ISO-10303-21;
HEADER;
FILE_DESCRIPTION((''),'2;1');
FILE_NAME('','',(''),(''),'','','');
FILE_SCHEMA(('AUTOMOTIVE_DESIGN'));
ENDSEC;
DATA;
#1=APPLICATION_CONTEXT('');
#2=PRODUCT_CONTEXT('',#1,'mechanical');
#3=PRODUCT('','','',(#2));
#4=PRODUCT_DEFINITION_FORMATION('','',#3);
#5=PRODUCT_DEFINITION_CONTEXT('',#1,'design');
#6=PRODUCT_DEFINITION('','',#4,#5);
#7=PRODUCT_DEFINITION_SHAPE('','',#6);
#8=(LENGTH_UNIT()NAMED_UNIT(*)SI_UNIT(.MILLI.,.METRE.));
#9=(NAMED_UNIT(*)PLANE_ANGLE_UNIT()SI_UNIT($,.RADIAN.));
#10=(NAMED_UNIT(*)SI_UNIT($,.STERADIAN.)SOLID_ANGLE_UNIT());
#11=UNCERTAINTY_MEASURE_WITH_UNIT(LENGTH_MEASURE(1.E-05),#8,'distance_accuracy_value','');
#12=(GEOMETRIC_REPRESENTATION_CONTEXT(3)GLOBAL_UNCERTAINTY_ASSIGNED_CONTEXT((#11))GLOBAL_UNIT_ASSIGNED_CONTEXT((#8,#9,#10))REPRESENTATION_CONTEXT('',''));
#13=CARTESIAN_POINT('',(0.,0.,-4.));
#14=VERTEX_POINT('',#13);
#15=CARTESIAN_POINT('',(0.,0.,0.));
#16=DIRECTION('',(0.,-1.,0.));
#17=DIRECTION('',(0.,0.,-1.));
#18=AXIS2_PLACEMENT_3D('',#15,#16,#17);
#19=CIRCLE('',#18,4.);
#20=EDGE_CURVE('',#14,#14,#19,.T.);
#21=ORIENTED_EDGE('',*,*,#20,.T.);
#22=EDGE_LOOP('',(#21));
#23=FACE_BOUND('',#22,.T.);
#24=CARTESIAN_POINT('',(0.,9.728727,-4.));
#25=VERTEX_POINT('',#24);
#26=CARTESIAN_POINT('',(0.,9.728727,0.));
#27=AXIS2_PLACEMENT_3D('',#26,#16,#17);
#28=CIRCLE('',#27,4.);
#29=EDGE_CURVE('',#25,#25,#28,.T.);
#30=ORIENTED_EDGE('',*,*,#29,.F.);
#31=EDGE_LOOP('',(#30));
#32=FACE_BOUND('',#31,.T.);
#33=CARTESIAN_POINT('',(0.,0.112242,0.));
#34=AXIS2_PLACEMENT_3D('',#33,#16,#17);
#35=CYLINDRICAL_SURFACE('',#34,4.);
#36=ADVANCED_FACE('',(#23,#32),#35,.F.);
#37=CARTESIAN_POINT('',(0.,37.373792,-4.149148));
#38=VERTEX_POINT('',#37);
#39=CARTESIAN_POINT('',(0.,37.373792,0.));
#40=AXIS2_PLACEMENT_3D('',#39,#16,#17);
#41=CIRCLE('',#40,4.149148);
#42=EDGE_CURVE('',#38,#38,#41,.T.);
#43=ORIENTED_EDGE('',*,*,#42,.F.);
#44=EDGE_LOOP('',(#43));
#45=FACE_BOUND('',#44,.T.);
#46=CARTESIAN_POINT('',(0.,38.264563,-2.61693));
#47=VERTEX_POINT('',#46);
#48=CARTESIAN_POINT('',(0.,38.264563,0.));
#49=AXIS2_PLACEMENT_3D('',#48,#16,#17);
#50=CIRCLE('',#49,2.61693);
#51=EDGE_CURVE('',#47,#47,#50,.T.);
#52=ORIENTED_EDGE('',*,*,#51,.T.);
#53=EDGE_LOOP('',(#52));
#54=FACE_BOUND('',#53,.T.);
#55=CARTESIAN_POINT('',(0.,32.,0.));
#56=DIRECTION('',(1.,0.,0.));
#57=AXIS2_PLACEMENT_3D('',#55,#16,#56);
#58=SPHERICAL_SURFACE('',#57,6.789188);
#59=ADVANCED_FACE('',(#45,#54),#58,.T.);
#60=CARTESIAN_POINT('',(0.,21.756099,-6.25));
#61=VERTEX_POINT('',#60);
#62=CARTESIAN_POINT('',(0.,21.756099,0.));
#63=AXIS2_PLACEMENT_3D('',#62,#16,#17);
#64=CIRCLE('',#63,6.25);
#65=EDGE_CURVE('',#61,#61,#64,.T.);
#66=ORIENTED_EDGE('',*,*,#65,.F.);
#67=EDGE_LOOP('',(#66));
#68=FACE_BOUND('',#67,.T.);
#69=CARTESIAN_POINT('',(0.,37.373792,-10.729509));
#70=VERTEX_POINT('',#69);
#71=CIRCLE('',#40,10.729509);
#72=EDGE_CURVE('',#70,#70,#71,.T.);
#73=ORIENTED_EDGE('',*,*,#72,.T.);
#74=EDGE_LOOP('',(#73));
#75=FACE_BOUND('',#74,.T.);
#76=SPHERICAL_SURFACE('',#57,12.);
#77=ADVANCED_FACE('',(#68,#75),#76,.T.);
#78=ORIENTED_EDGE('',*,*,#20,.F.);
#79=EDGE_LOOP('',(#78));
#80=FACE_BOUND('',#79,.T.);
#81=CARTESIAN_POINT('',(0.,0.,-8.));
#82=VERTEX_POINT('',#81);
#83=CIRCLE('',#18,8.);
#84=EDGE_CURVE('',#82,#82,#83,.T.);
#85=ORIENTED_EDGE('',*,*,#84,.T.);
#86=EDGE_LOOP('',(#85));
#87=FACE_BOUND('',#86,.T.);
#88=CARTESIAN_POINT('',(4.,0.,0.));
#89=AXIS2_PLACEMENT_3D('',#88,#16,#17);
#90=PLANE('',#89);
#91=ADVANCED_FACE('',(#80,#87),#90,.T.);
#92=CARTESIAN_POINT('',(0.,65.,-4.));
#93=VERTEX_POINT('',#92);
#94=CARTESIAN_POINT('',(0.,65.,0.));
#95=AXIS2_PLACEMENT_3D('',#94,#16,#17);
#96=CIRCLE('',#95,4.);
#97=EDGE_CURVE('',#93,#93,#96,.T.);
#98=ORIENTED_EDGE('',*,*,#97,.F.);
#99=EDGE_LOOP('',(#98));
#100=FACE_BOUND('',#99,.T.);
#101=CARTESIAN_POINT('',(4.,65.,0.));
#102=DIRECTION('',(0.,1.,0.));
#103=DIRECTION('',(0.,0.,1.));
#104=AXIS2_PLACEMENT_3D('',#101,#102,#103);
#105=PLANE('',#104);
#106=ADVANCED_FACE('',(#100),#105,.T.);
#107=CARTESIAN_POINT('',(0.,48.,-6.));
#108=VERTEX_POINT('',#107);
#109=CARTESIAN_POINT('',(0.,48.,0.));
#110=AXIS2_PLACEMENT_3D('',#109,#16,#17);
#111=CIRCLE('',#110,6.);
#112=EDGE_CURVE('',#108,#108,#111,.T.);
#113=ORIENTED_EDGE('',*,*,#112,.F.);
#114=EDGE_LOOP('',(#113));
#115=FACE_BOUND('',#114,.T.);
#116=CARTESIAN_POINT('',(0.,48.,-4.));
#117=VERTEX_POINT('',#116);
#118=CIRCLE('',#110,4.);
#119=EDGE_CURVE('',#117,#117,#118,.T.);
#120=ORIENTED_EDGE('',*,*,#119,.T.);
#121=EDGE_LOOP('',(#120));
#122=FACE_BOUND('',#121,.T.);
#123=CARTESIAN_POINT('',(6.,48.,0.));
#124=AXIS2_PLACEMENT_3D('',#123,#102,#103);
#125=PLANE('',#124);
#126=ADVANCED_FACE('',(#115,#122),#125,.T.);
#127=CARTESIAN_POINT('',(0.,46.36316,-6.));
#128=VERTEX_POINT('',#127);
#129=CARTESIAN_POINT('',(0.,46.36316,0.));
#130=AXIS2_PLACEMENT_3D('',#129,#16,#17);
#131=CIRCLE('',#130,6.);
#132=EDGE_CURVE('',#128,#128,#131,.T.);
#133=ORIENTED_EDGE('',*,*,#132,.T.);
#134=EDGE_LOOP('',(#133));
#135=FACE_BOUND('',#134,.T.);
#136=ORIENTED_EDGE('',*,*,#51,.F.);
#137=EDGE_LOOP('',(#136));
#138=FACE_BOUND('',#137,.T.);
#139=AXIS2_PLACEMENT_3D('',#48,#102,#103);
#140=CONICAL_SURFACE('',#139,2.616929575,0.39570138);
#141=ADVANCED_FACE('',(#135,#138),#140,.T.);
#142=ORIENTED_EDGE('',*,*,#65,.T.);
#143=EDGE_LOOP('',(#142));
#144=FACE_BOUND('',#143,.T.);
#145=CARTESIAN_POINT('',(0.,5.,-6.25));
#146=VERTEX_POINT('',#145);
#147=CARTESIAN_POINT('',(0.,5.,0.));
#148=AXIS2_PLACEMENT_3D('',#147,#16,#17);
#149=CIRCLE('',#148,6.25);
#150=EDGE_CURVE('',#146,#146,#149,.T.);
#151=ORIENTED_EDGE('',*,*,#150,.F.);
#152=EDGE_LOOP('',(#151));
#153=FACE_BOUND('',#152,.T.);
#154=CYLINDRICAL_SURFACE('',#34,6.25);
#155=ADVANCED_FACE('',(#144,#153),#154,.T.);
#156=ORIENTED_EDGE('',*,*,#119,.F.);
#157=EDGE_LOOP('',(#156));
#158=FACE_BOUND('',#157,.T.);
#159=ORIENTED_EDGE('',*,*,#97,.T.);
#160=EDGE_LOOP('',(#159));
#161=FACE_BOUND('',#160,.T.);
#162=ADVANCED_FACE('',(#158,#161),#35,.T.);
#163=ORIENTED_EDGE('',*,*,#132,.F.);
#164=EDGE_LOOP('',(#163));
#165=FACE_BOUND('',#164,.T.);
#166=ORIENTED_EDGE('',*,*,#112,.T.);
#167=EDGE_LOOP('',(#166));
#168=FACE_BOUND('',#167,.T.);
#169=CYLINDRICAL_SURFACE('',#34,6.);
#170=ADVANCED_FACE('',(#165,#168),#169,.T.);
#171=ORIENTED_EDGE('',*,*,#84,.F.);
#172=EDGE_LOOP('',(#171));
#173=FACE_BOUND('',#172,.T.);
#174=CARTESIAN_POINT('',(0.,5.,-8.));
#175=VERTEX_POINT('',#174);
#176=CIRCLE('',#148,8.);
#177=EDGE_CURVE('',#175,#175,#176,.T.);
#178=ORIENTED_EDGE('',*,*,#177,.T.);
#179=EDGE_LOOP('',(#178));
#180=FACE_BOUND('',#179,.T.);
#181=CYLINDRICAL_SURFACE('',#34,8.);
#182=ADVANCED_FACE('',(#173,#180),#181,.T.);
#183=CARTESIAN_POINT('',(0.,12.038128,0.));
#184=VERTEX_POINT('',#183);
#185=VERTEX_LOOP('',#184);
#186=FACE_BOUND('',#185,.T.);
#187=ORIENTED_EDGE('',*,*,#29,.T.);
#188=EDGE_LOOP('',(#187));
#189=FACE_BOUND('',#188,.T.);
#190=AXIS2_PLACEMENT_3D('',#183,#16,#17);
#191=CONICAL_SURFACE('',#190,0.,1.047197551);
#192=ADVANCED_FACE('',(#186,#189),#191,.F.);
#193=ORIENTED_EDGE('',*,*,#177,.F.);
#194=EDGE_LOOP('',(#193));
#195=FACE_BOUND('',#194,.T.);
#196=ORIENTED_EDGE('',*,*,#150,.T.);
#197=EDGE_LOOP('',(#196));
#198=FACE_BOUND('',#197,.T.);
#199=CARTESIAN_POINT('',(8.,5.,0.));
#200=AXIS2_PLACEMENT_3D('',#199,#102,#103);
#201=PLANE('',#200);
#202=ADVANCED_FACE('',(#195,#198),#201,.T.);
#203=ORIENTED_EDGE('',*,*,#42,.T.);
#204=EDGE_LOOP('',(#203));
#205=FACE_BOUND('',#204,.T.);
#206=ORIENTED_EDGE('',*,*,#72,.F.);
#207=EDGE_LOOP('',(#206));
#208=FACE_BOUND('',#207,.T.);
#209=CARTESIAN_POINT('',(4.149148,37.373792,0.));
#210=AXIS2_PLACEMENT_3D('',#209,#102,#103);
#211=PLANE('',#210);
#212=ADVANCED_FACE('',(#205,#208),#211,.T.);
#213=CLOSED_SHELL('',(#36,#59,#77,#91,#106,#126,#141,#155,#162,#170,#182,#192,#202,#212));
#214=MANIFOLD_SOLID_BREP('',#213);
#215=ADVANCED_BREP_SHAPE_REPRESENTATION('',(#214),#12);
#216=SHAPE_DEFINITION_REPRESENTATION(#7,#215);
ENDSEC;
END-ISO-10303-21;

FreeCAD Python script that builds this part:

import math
import FreeCAD as App
import Part
import Sketcher

V = App.Vector
Q = App.Units.Quantity

doc = App.newDocument("Part")
body = doc.addObject("PartDesign::Body", "Body")

# Sketch on XY plane
sketch1 = doc.addObject("Sketcher::SketchObject", "Sketch")
body.addObject(sketch1)
sketch1.AttachmentSupport = (doc.XY_Plane, [""])
sketch1.MapMode = "FlatFace"
sketch1.addGeometry(Part.LineSegment(V(0, 12.038128, 0), V(4, 9.728727, 0)), False)
sketch1.addGeometry(Part.LineSegment(V(4, 9.728727, 0), V(4, 0, 0)), False)
sketch1.addGeometry(Part.LineSegment(V(4, 0, 0), V(8, 0, 0)), False)
sketch1.addGeometry(Part.LineSegment(V(8, 0, 0), V(8, 5, 0)), False)
sketch1.addGeometry(Part.LineSegment(V(8, 5, 0), V(6.25, 5, 0)), False)
sketch1.addGeometry(Part.LineSegment(V(6.25, 5, 0), V(6.25, 21.756099, 0)), False)
sketch1.addGeometry(Part.ArcOfCircle(Part.Circle(V(0, 32, 0), V(0, 0, 1), 12), math.radians(-58.611834), math.radians(26.603648)), False)
sketch1.addGeometry(Part.LineSegment(V(10.729509, 37.373792, 0), V(4.149148, 37.373792, 0)), False)
sketch1.addGeometry(Part.ArcOfCircle(Part.Circle(V(0, 32, 0), V(0, 0, 1), 6.789188), math.radians(52.327981), math.radians(67.327981)), False)
sketch1.addGeometry(Part.LineSegment(V(2.61693, 38.264563, 0), V(6, 46.36316, 0)), False)
sketch1.addGeometry(Part.LineSegment(V(6, 46.36316, 0), V(6, 48, 0)), False)
sketch1.addGeometry(Part.LineSegment(V(6, 48, 0), V(4, 48, 0)), False)
sketch1.addGeometry(Part.LineSegment(V(4, 48, 0), V(4, 65, 0)), False)
sketch1.addGeometry(Part.LineSegment(V(4, 65, 0), V(0, 65, 0)), False)
sketch1.addGeometry(Part.LineSegment(V(0, 65, 0), V(0, 12.038128, 0)), False)
sketch1.addConstraint(Sketcher.Constraint("Coincident", 0, 2, 1, 1))
sketch1.addConstraint(Sketcher.Constraint("Coincident", 1, 2, 2, 1))
sketch1.addConstraint(Sketcher.Constraint("Coincident", 2, 2, 3, 1))
sketch1.addConstraint(Sketcher.Constraint("Coincident", 3, 2, 4, 1))
sketch1.addConstraint(Sketcher.Constraint("Coincident", 4, 2, 5, 1))
sketch1.addConstraint(Sketcher.Constraint("Coincident", 5, 2, 6, 1))
sketch1.addConstraint(Sketcher.Constraint("Coincident", 6, 2, 7, 1))
sketch1.addConstraint(Sketcher.Constraint("Coincident", 7, 2, 8, 1))
sketch1.addConstraint(Sketcher.Constraint("Coincident", 8, 2, 9, 1))
sketch1.addConstraint(Sketcher.Constraint("Coincident", 9, 2, 10, 1))
sketch1.addConstraint(Sketcher.Constraint("Coincident", 10, 2, 11, 1))
sketch1.addConstraint(Sketcher.Constraint("Coincident", 11, 2, 12, 1))
sketch1.addConstraint(Sketcher.Constraint("Coincident", 12, 2, 13, 1))
sketch1.addConstraint(Sketcher.Constraint("Coincident", 13, 2, 14, 1))
sketch1.addConstraint(Sketcher.Constraint("Coincident", 14, 2, 0, 1))
sketch1.addConstraint(Sketcher.Constraint("Vertical", 1))
sketch1.addConstraint(Sketcher.Constraint("Horizontal", 2))
sketch1.addConstraint(Sketcher.Constraint("Vertical", 3))
sketch1.addConstraint(Sketcher.Constraint("Horizontal", 4))
sketch1.addConstraint(Sketcher.Constraint("Vertical", 5))
sketch1.addConstraint(Sketcher.Constraint("Horizontal", 7))
sketch1.addConstraint(Sketcher.Constraint("Vertical", 10))
sketch1.addConstraint(Sketcher.Constraint("Horizontal", 11))
sketch1.addConstraint(Sketcher.Constraint("Vertical", 12))
sketch1.addConstraint(Sketcher.Constraint("Horizontal", 13))
sketch1.addConstraint(Sketcher.Constraint("Vertical", 14))
sketch1.addConstraint(Sketcher.Constraint("Coincident", 8, 3, 6, 3))
sketch1.addConstraint(Sketcher.Constraint("PointOnObject", 6, 3, -2))
sketch1.addConstraint(Sketcher.Constraint("PointOnObject", 1, 2, -1))
sketch1.addConstraint(Sketcher.Constraint("PointOnObject", 13, 2, -2))
sketch1.addConstraint(Sketcher.Constraint("Vertical", 1, 2, 11, 2))
sketch1.addConstraint(Sketcher.Constraint("Equal", 2, 13))
sketch1.addConstraint(Sketcher.Constraint("Radius", 6, Q("12 mm")))
sketch1.addConstraint(Sketcher.Constraint("DistanceX", 2, 1, 2, 2, Q("4 mm")))
sketch1.addConstraint(Sketcher.Constraint("DistanceX", 11, 2, 11, 1, Q("2 mm")))
sketch1.addConstraint(Sketcher.Constraint("DistanceY", 3, 1, 3, 2, Q("5 mm")))
sketch1.addConstraint(Sketcher.Constraint("DistanceY", 12, 1, 12, 2, Q("17 mm")))
sketch1.addConstraint(Sketcher.Constraint("Angle", 0, Q("-30 deg")))
sketch1.addConstraint(Sketcher.Constraint("DistanceY", -1, 1, 6, 3, Q("32 mm")))
sketch1.addConstraint(Sketcher.Constraint("DistanceY", -1, 1, 10, 2, Q("48 mm")))
sketch1.addConstraint(Sketcher.Constraint("DistanceX", 4, 2, 4, 1, Q("1.75 mm")))
sketch1.addConstraint(Sketcher.Constraint("Radius", 8, Q("6.789188 mm")))
sketch1.addConstraint(Sketcher.Constraint("DistanceX", 7, 2, 7, 1, Q("6.580361 mm")))
sketch1.addConstraint(Sketcher.Constraint("DistanceY", 10, 1, 10, 2, Q("1.63684 mm")))
sketch1.addConstraint(Sketcher.Constraint("DistanceY", 1, 2, 1, 1, Q("9.728727 mm")))
sketch1.addConstraint(Sketcher.Constraint("DistanceX", -1, 1, 8, 2, Q("2.61693 mm")))
revolution = doc.addObject("PartDesign::Revolution", "Revolution")
body.addObject(revolution)
revolution.Profile = sketch1
revolution.ReferenceAxis = (sketch1, ["V_Axis"])
revolution.Angle = 360

doc.recompute()
